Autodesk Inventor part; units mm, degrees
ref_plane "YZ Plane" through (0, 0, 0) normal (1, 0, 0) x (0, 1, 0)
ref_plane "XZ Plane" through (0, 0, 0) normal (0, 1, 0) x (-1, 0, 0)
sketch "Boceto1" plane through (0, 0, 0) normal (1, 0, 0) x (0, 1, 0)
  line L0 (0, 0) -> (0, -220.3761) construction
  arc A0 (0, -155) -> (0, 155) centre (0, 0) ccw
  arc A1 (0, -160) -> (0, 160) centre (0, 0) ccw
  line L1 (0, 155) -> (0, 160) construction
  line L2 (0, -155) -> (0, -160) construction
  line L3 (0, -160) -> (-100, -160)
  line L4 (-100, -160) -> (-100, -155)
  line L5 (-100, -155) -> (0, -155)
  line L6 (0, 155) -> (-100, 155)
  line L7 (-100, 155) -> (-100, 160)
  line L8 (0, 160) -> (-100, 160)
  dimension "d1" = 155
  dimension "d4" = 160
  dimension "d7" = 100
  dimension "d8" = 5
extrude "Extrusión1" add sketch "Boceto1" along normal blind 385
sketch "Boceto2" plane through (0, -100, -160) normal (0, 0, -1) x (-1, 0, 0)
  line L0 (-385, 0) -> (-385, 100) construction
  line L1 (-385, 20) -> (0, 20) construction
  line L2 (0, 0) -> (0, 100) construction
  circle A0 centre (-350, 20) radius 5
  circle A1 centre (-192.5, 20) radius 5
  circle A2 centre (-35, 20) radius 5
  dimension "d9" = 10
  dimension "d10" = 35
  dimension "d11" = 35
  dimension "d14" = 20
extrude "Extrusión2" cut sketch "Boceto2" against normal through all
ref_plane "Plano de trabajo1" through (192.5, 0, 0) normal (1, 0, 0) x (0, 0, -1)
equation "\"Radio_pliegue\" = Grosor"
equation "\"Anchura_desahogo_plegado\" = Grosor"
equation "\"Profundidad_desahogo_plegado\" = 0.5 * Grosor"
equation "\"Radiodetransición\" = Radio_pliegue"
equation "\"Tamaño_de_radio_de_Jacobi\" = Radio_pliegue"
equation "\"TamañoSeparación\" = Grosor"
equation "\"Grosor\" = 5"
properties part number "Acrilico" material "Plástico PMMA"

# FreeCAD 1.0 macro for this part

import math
import FreeCAD as App
import Part
import Sketcher

V = App.Vector
Q = App.Units.Quantity

doc = App.newDocument("Part")
body = doc.addObject("PartDesign::Body", "Body")

sketch1 = body.newObject("Sketcher::SketchObject", "Sketch")
sketch1.AttachmentSupport = (doc.getObject("YZ_Plane"), [""])
sketch1.MapMode = "FlatFace"
sketch1.addGeometry(Part.ArcOfCircle(Part.Circle(V(0, 0, 0), V(0, 0, 1), 155), math.radians(-90), math.radians(90)), False)
sketch1.addGeometry(Part.LineSegment(V(0, -155, 0), V(-100, -155, 0)), False)
sketch1.addGeometry(Part.LineSegment(V(-100, -155, 0), V(-100, -160, 0)), False)
sketch1.addGeometry(Part.LineSegment(V(-100, -160, 0), V(0, -160, 0)), False)
sketch1.addGeometry(Part.ArcOfCircle(Part.Circle(V(0, 0, 0), V(0, 0, 1), 160), math.radians(-90), math.radians(90)), False)
sketch1.addGeometry(Part.LineSegment(V(0, 160, 0), V(-100, 160, 0)), False)
sketch1.addGeometry(Part.LineSegment(V(-100, 160, 0), V(-100, 155, 0)), False)
sketch1.addGeometry(Part.LineSegment(V(-100, 155, 0), V(0, 155, 0)), False)
sketch1.addConstraint(Sketcher.Constraint("Tangent", 0, 1, 1, 1))
sketch1.addConstraint(Sketcher.Constraint("Coincident", 1, 2, 2, 1))
sketch1.addConstraint(Sketcher.Constraint("Coincident", 2, 2, 3, 1))
sketch1.addConstraint(Sketcher.Constraint("Tangent", 3, 2, 4, 1))
sketch1.addConstraint(Sketcher.Constraint("Tangent", 4, 2, 5, 1))
sketch1.addConstraint(Sketcher.Constraint("Coincident", 5, 2, 6, 1))
sketch1.addConstraint(Sketcher.Constraint("Coincident", 6, 2, 7, 1))
sketch1.addConstraint(Sketcher.Constraint("Tangent", 7, 2, 0, 2))
sketch1.addConstraint(Sketcher.Constraint("Horizontal", 1))
sketch1.addConstraint(Sketcher.Constraint("Vertical", 2))
sketch1.addConstraint(Sketcher.Constraint("Horizontal", 3))
sketch1.addConstraint(Sketcher.Constraint("Horizontal", 5))
sketch1.addConstraint(Sketcher.Constraint("Vertical", 6))
sketch1.addConstraint(Sketcher.Constraint("Horizontal", 7))
sketch1.addConstraint(Sketcher.Constraint("Coincident", 0, 3, -1, 1))
sketch1.addConstraint(Sketcher.Constraint("Coincident", 4, 3, -1, 1))
sketch1.addConstraint(Sketcher.Constraint("Vertical", 2, 2, 5, 2))
sketch1.addConstraint(Sketcher.Constraint("Radius", 0, Q("155 mm")))
sketch1.addConstraint(Sketcher.Constraint("Radius", 4, Q("160 mm")))
sketch1.addConstraint(Sketcher.Constraint("DistanceX", 1, 2, 1, 1, Q("100 mm")))
pad1 = body.newObject("PartDesign::Pad", "Pad")
pad1.Profile = sketch1
pad1.Length = 385

sketch2 = body.newObject("Sketcher::SketchObject", "Sketch001")
sketch2.AttachmentSupport = (doc.getObject("XY_Plane"), [""])
sketch2.MapMode = "FlatFace"
sketch2.AttachmentOffset = App.Placement(V(0, 0, -160), App.Rotation())
sketch2.addGeometry(Part.Circle(V(350, -80, 0), V(0, 0, 1), 5), False)
sketch2.addGeometry(Part.Circle(V(192, -80, 0), V(0, 0, 1), 5), False)
sketch2.addGeometry(Part.Circle(V(35, -80, 0), V(0, 0, 1), 5), False)
sketch2.addConstraint(Sketcher.Constraint("Equal", 0, 1))
sketch2.addConstraint(Sketcher.Constraint("Equal", 1, 2))
sketch2.addConstraint(Sketcher.Constraint("Horizontal", 0, 3, 1, 3))
sketch2.addConstraint(Sketcher.Constraint("Horizontal", 1, 3, 2, 3))
sketch2.addConstraint(Sketcher.Constraint("Diameter", 0, Q("10 mm")))
sketch2.addConstraint(Sketcher.Constraint("DistanceX", -1, 1, 2, 3, Q("35 mm")))
sketch2.addConstraint(Sketcher.Constraint("DistanceX", -1, 1, 0, 3, Q("350 mm")))
sketch2.addConstraint(Sketcher.Constraint("DistanceY", 0, 3, -1, 1, Q("80 mm")))
sketch2.addConstraint(Sketcher.Constraint("DistanceX", -1, 1, 1, 3, Q("192.5 mm")))
pocket1 = body.newObject("PartDesign::Pocket", "Pocket")
pocket1.Profile = sketch2
pocket1.Type = "ThroughAll"
pocket1.Reversed = True

doc.recompute()
